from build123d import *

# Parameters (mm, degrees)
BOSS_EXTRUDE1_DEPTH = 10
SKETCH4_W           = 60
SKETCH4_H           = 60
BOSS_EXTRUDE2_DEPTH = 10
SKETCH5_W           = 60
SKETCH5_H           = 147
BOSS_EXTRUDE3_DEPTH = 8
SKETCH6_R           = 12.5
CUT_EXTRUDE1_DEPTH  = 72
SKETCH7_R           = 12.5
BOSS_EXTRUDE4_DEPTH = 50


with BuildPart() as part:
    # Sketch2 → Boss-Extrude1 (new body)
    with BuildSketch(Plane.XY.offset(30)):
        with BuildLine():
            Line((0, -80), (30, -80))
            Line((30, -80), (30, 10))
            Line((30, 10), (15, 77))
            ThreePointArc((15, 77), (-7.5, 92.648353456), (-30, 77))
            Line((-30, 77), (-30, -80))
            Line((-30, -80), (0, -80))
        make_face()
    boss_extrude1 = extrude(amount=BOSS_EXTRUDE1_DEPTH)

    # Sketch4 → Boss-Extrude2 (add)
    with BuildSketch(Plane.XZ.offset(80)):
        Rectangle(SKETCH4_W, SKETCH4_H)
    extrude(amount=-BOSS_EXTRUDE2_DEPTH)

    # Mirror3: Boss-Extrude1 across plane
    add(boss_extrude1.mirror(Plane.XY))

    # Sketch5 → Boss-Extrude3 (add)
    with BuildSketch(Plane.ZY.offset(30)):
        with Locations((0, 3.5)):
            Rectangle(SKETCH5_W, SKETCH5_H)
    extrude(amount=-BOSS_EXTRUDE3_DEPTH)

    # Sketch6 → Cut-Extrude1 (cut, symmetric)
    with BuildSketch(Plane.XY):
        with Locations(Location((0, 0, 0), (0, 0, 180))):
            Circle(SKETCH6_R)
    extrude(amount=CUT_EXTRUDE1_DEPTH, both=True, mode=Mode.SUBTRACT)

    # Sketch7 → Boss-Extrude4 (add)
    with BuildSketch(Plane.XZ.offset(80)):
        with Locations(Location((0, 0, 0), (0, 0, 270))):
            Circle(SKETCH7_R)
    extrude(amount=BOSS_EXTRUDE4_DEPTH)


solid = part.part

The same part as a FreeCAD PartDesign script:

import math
import FreeCAD as App
import Part
import Sketcher

doc = App.newDocument("Part")
params = doc.addObject("Spreadsheet::Sheet", "Params")
for row, (alias, value) in enumerate([
    ("sketch1_radius", "24 mm"),
    ("sketch1_width", "60 mm"),
    ("sketch1_height", "90 mm"),
    ("sketch1_height2", "157 mm"),
    ("pad1_length", "10 mm"),
    ("sketch2_width", "60 mm"),
    ("pad2_length", "10 mm"),
    ("sketch3_width", "147 mm"),
    ("sketch3_height", "60 mm"),
    ("pad3_length", "8 mm"),
    ("sketch4_diameter", "25 mm"),
    ("pocket1_length", "144 mm"),
    ("sketch5_diameter", "25 mm"),
    ("pad4_length", "50 mm"),
], start=1):
    params.set(f"A{row}", alias)
    params.set(f"B{row}", "=" + value)
    params.setAlias(f"B{row}", alias)

body = doc.addObject("PartDesign::Body", "Body")

sketch1 = body.newObject("Sketcher::SketchObject", "Sketch")
sketch1.AttachmentSupport = (doc.getObject("XY_Plane"), [""])
sketch1.MapMode = "FlatFace"
sketch1.AttachmentOffset = App.Placement(App.Vector(0, 0, 30), App.Rotation())
sketch1.addGeometry([
    Part.LineSegment(App.Vector(30, -80, 0), App.Vector(30, 10, 0)),
    Part.LineSegment(App.Vector(30, 10, 0), App.Vector(15, 77, 0)),
    Part.ArcOfCircle(Part.Circle(App.Vector(-7.5, 68.648353, 0), App.Vector(0, 0, 1), 24), math.radians(20.364135), math.radians(159.635865)),
    Part.LineSegment(App.Vector(-30, 77, 0), App.Vector(-30, -80, 0)),
    Part.LineSegment(App.Vector(-30, -80, 0), App.Vector(30, -80, 0)),
], False)
sketch1.addConstraint([
    Sketcher.Constraint("Coincident", 0, 2, 1, 1),
    Sketcher.Constraint("Coincident", 1, 2, 2, 1),
    Sketcher.Constraint("Coincident", 2, 2, 3, 1),
    Sketcher.Constraint("Coincident", 3, 2, 4, 1),
    Sketcher.Constraint("Coincident", 4, 2, 0, 1),
    Sketcher.Constraint("Vertical", 0),
    Sketcher.Constraint("Vertical", 3),
    Sketcher.Constraint("Horizontal", 4),
    Sketcher.Constraint("Horizontal", 1, 2, 2, 2),
    Sketcher.Constraint("Radius", 2, 24.0),
    Sketcher.Constraint("DistanceX", 4, 1, 4, 2, 60.0),
    Sketcher.Constraint("DistanceY", 0, 1, 0, 2, 90.0),
    Sketcher.Constraint("DistanceY", 3, 2, 3, 1, 157.0),
    Sketcher.Constraint("DistanceX", -1, 1, 0, 2, 30.0),
    Sketcher.Constraint("DistanceY", -1, 1, 0, 2, 10.0),
    Sketcher.Constraint("DistanceX", -1, 1, 1, 2, 15.0),
])
sketch1.setExpression("Constraints[9]", "Params.sketch1_radius")
sketch1.setExpression("Constraints[10]", "Params.sketch1_width")
sketch1.setExpression("Constraints[11]", "Params.sketch1_height")
sketch1.setExpression("Constraints[12]", "Params.sketch1_height2")
pad1 = body.newObject("PartDesign::Pad", "Pad")
pad1.Profile = sketch1
pad1.setExpression("Length", "Params.pad1_length")

sketch2 = body.newObject("Sketcher::SketchObject", "Sketch001")
sketch2.AttachmentSupport = (doc.getObject("XZ_Plane"), [""])
sketch2.MapMode = "FlatFace"
sketch2.AttachmentOffset = App.Placement(App.Vector(0, 0, 80), App.Rotation())
sketch2.addGeometry([
    Part.LineSegment(App.Vector(-30, 30, 0), App.Vector(-30, -30, 0)),
    Part.LineSegment(App.Vector(-30, -30, 0), App.Vector(30, -30, 0)),
    Part.LineSegment(App.Vector(30, -30, 0), App.Vector(30, 30, 0)),
    Part.LineSegment(App.Vector(30, 30, 0), App.Vector(-30, 30, 0)),
], False)
sketch2.addConstraint([
    Sketcher.Constraint("Coincident", 0, 2, 1, 1),
    Sketcher.Constraint("Coincident", 1, 2, 2, 1),
    Sketcher.Constraint("Coincident", 2, 2, 3, 1),
    Sketcher.Constraint("Coincident", 3, 2, 0, 1),
    Sketcher.Constraint("Vertical", 0),
    Sketcher.Constraint("Horizontal", 1),
    Sketcher.Constraint("Vertical", 2),
    Sketcher.Constraint("Horizontal", 3),
    Sketcher.Constraint("Symmetric", 0, 2, 2, 2, -1, 1),
    Sketcher.Constraint("Equal", 3, 0),
    Sketcher.Constraint("DistanceX", 1, 1, 1, 2, 60.0),
])
sketch2.setExpression("Constraints[10]", "Params.sketch2_width")
pad2 = body.newObject("PartDesign::Pad", "Pad001")
pad2.Profile = sketch2
pad2.setExpression("Length", "Params.pad2_length")
pad2.Reversed = True
doc.recompute()

mirrored = body.newObject("PartDesign::Mirrored", "Mirrored")
mirrored.Originals = [pad1]
mirrored.MirrorPlane = (doc.getObject("XY_Plane"), [""])
body.Tip = mirrored

sketch3 = body.newObject("Sketcher::SketchObject", "Sketch002")
sketch3.AttachmentSupport = (doc.getObject("YZ_Plane"), [""])
sketch3.MapMode = "FlatFace"
sketch3.AttachmentOffset = App.Placement(App.Vector(0, 0, -30), App.Rotation())
sketch3.addGeometry([
    Part.LineSegment(App.Vector(77, -30, 0), App.Vector(-70, -30, 0)),
    Part.LineSegment(App.Vector(-70, -30, 0), App.Vector(-70, 30, 0)),
    Part.LineSegment(App.Vector(-70, 30, 0), App.Vector(77, 30, 0)),
    Part.LineSegment(App.Vector(77, 30, 0), App.Vector(77, -30, 0)),
], False)
sketch3.addConstraint([
    Sketcher.Constraint("Coincident", 0, 2, 1, 1),
    Sketcher.Constraint("Coincident", 1, 2, 2, 1),
    Sketcher.Constraint("Coincident", 2, 2, 3, 1),
    Sketcher.Constraint("Coincident", 3, 2, 0, 1),
    Sketcher.Constraint("Horizontal", 0),
    Sketcher.Constraint("Vertical", 1),
    Sketcher.Constraint("Horizontal", 2),
    Sketcher.Constraint("Vertical", 3),
    Sketcher.Constraint("DistanceX", 0, 2, 0, 1, 147.0),
    Sketcher.Constraint("DistanceY", 1, 1, 1, 2, 60.0),
    Sketcher.Constraint("DistanceX", 0, 2, -1, 1, 70.0),
    Sketcher.Constraint("DistanceY", 0, 2, -1, 1, 30.0),
])
sketch3.setExpression("Constraints[8]", "Params.sketch3_width")
sketch3.setExpression("Constraints[9]", "Params.sketch3_height")
pad3 = body.newObject("PartDesign::Pad", "Pad002")
pad3.Profile = sketch3
pad3.setExpression("Length", "Params.pad3_length")

sketch4 = body.newObject("Sketcher::SketchObject", "Sketch003")
sketch4.AttachmentSupport = (doc.getObject("XY_Plane"), [""])
sketch4.MapMode = "FlatFace"
sketch4.addGeometry(Part.Circle(App.Vector(0, 0, 0), App.Vector(0, 0, 1), 12.5), False)
sketch4.addConstraint([
    Sketcher.Constraint("Coincident", 0, 3, -1, 1),
    Sketcher.Constraint("Diameter", 0, 25.0),
])
sketch4.setExpression("Constraints[1]", "Params.sketch4_diameter")
pocket1 = body.newObject("PartDesign::Pocket", "Pocket")
pocket1.Profile = sketch4
pocket1.setExpression("Length", "Params.pocket1_length")
pocket1.Midplane = True

sketch5 = body.newObject("Sketcher::SketchObject", "Sketch004")
sketch5.AttachmentSupport = (doc.getObject("XZ_Plane"), [""])
sketch5.MapMode = "FlatFace"
sketch5.AttachmentOffset = App.Placement(App.Vector(0, 0, 80), App.Rotation())
sketch5.addGeometry(Part.Circle(App.Vector(0, 0, 0), App.Vector(0, 0, 1), 12.5), False)
sketch5.addConstraint([
    Sketcher.Constraint("Coincident", 0, 3, -1, 1),
    Sketcher.Constraint("Diameter", 0, 25.0),
])
sketch5.setExpression("Constraints[1]", "Params.sketch5_diameter")
pad4 = body.newObject("PartDesign::Pad", "Pad003")
pad4.Profile = sketch5
pad4.setExpression("Length", "Params.pad4_length")

doc.recompute()
